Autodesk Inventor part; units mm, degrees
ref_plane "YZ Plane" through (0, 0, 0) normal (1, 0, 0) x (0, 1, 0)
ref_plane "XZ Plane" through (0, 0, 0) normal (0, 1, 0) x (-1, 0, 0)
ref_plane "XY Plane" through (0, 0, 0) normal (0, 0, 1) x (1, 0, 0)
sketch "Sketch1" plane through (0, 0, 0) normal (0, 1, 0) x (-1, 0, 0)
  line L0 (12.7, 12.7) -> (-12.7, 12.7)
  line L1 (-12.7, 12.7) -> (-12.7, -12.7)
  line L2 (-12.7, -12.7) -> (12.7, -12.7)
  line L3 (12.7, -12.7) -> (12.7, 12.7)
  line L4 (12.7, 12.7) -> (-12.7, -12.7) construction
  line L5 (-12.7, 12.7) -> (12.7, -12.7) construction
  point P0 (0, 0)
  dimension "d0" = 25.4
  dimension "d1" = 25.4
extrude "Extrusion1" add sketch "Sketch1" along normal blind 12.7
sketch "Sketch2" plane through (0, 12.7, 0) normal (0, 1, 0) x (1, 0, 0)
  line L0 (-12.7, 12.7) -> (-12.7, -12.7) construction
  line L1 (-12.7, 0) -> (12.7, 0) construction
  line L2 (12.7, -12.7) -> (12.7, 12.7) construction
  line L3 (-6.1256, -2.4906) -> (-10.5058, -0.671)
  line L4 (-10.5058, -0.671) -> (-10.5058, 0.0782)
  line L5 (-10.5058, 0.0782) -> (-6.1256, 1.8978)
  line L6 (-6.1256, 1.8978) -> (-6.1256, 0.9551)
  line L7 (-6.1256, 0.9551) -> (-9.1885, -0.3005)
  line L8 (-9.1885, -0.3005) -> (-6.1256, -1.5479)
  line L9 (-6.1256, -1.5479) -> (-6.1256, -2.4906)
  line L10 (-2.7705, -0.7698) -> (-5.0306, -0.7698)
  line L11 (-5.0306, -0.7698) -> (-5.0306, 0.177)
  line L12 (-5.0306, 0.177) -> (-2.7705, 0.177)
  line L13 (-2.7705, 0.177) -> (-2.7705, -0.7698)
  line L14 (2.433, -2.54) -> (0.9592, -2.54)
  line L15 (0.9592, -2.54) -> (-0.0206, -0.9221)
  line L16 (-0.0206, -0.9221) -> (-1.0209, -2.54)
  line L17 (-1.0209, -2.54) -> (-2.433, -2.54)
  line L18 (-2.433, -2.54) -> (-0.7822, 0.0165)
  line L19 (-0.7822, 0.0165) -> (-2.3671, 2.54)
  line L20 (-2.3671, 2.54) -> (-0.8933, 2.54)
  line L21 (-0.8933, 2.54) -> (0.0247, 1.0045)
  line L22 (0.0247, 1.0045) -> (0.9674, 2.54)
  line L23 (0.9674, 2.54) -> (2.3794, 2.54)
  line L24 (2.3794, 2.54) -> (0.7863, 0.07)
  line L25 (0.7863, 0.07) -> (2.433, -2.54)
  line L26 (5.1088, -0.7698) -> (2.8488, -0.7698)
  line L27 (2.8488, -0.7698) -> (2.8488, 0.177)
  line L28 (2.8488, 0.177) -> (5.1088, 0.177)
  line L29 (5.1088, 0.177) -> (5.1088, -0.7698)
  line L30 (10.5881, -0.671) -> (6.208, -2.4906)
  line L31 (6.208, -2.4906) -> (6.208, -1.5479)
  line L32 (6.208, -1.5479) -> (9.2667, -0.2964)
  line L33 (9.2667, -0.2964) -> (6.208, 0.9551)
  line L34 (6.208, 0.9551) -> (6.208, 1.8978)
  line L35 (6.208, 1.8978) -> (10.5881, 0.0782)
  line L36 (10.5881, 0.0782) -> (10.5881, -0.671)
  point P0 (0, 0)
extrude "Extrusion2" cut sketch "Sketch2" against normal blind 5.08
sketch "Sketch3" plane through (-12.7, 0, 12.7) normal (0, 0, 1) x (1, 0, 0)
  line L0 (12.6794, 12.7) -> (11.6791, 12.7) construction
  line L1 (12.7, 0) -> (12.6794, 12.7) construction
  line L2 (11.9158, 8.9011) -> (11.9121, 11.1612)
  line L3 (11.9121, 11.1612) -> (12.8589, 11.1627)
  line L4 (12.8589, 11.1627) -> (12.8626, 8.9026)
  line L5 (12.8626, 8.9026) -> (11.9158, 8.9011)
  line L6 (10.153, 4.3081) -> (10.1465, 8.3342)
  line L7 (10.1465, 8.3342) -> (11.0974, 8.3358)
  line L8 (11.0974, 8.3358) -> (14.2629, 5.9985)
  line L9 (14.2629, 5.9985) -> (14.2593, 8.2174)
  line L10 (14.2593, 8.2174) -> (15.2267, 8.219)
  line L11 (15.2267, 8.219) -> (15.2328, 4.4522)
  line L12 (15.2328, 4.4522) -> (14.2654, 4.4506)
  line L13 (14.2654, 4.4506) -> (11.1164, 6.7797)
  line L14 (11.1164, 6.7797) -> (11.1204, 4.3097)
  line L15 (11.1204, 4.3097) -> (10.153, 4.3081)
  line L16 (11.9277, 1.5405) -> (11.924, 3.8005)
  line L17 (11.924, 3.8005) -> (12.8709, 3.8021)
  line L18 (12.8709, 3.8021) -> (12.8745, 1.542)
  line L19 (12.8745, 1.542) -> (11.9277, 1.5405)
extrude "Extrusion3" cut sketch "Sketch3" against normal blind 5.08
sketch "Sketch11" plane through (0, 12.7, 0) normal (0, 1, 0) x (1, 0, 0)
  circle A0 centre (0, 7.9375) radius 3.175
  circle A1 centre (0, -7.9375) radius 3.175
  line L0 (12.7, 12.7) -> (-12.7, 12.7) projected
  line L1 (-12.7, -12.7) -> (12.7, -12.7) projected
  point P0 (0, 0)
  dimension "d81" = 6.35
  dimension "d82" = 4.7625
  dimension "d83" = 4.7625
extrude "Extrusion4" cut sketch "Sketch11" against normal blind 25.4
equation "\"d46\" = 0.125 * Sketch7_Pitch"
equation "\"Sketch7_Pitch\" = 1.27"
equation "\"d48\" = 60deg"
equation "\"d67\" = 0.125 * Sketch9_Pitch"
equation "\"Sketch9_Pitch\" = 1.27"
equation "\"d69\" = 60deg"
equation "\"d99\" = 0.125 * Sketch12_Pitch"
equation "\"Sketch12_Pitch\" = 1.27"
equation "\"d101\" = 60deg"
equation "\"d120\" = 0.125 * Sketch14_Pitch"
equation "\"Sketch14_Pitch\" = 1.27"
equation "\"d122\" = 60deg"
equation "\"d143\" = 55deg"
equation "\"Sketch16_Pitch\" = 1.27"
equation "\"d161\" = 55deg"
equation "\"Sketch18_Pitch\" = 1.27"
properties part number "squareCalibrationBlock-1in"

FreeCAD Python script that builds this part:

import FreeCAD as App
import Part
import Sketcher
from FreeCAD import Vector
Q = App.Units.Quantity


def add_polygon(sketch, points):
    """Adds a closed chain of lines whose ends are joined by coincident constraints."""
    first, n = sketch.GeometryCount, len(points)
    for a, b in zip(points, points[1:] + points[:1]):
        sketch.addGeometry(Part.LineSegment(App.Vector(*a, 0), App.Vector(*b, 0)), False)
    for i in range(n):
        sketch.addConstraint(Sketcher.Constraint("Coincident", first + i, 2, first + (i + 1) % n, 1))

doc = App.newDocument("Part")
body = doc.addObject("PartDesign::Body", "Body")

# Sketch on XZ plane
sketch1 = body.newObject("Sketcher::SketchObject", "Sketch")
sketch1.AttachmentSupport = (doc.getObject("XZ_Plane"), [""])
sketch1.MapMode = "FlatFace"
add_polygon(sketch1, [(-13, -13), (-13, 13), (13, 13), (13, -13)])  # lines 0-3
sketch1.addConstraint([
    Sketcher.Constraint("Vertical", 0),
    Sketcher.Constraint("Horizontal", 1),
    Sketcher.Constraint("Vertical", 2),
    Sketcher.Constraint("Horizontal", 3),
    Sketcher.Constraint("Symmetric", 0, 2, 2, 2, -1, 1),
    Sketcher.Constraint("Equal", 3, 0),
    Sketcher.Constraint("DistanceX", 1, 1, 1, 2, Q("1 in")),
])
pad1 = body.newObject("PartDesign::Pad", "Pad")
pad1.Profile = sketch1
pad1.Length = Q("0.5 in")
pad1.Reversed = True

# Sketch on XZ plane
sketch2 = body.newObject("Sketcher::SketchObject", "Sketch001")
sketch2.AttachmentSupport = (doc.getObject("XZ_Plane"), [""])
sketch2.MapMode = "FlatFace"
sketch2.AttachmentOffset = App.Placement(Vector(0, 0, -0.5 * 25.4), App.Rotation())
add_polygon(sketch2, [(-10.5, 0.7), (-6.1, 2.5), (-6.1, 1.5), (-9.2, 0.3), (-6.1, -1), (-6.1, -1.9), (-10.5, -0.1)])  # lines 0-6
add_polygon(sketch2, [(-5, 0.8), (-2.8, 0.8), (-2.8, -0.2), (-5, -0.2)])  # lines 7-10
add_polygon(sketch2, [(1, 2.5), (2.4, 2.5), (0.8, -0.1), (2.4, -2.5), (1, -2.5), (0, -1), (-0.9, -2.5), (-2.4, -2.5), (-0.8, 0), (-2.4, 2.5), (-1, 2.5), (0, 0.9)])  # lines 11-22
add_polygon(sketch2, [(2.8, 0.8), (5.1, 0.8), (5.1, -0.2), (2.8, -0.2)])  # lines 23-26
add_polygon(sketch2, [(6.2, 2.5), (10.6, 0.7), (10.6, -0.1), (6.2, -1.9), (6.2, -1), (9.3, 0.3), (6.2, 1.5)])  # lines 27-33
sketch2.addConstraint([
    Sketcher.Constraint("Vertical", 1),
    Sketcher.Constraint("Vertical", 4),
    Sketcher.Constraint("Vertical", 6),
    Sketcher.Constraint("Horizontal", 7),
    Sketcher.Constraint("Vertical", 8),
    Sketcher.Constraint("Horizontal", 9),
    Sketcher.Constraint("Vertical", 10),
    Sketcher.Constraint("Horizontal", 11),
    Sketcher.Constraint("Horizontal", 14),
    Sketcher.Constraint("Horizontal", 17),
    Sketcher.Constraint("Horizontal", 20),
    Sketcher.Constraint("Horizontal", 23),
    Sketcher.Constraint("Vertical", 24),
    Sketcher.Constraint("Horizontal", 25),
    Sketcher.Constraint("Vertical", 26),
    Sketcher.Constraint("Vertical", 28),
    Sketcher.Constraint("Vertical", 30),
    Sketcher.Constraint("Vertical", 33),
    Sketcher.Constraint("Symmetric", 11, 2, 19, 2, -2),
    Sketcher.Constraint("Parallel", 5, 27),
    Sketcher.Constraint("Parallel", 0, 29),
    Sketcher.Constraint("Horizontal", 14, 2, 16, 2),
    Sketcher.Constraint("Horizontal", 10, 2, 23, 2),
    Sketcher.Constraint("Horizontal", 9, 2, 24, 2),
    Sketcher.Constraint("Horizontal", 6, 2, 27, 2),
    Sketcher.Constraint("Horizontal", 5, 2, 28, 2),
    Sketcher.Constraint("Horizontal", 4, 2, 29, 2),
    Sketcher.Constraint("Horizontal", 3, 2, 30, 2),
    Sketcher.Constraint("Horizontal", 1, 2, 32, 2),
    Sketcher.Constraint("Horizontal", 0, 2, 33, 2),
    Sketcher.Constraint("Vertical", 1, 2, 3, 2),
    Sketcher.Constraint("Vertical", 30, 2, 32, 2),
    Sketcher.Constraint("Equal", 11, 17),
    Sketcher.Constraint("Equal", 14, 20),
    Sketcher.Constraint("Equal", 9, 23),
    Sketcher.Constraint("Equal", 1, 4),
    Sketcher.Constraint("Equal", 31, 32),
    Sketcher.Constraint("DistanceY", -1, 1, 11, 2, Q("0.1 in")),
    Sketcher.Constraint("DistanceY", 13, 2, -1, 1, Q("0.1 in")),
    Sketcher.Constraint("Angle", 22, Q("58.801 deg")),
    Sketcher.Constraint("Angle", 2, Q("-157.8408 deg")),
    Sketcher.Constraint("Angle", 3, Q("-22.2906 deg")),
    Sketcher.Constraint("Angle", 13, Q("-57.1788 deg")),
    Sketcher.Constraint("Angle", 18, Q("57.8689 deg")),
    Sketcher.Constraint("Angle", 27, Q("-22.5592 deg")),
    Sketcher.Constraint("DistanceX", 14, 2, 14, 1, Q("0.0556 in")),
    Sketcher.Constraint("DistanceY", 6, 1, 6, 2, Q("0.0295 in")),
    Sketcher.Constraint("DistanceX", 9, 2, 12, 2, Q("0.229 in")),
    Sketcher.Constraint("DistanceX", 19, 2, 18, 2, Q("0.065 in")),
    Sketcher.Constraint("DistanceY", 7, 2, 21, 2, Q("0.006 in")),
    Sketcher.Constraint("Distance", 2, Q("0.1302 in")),
    Sketcher.Constraint("Distance", 12, Q("0.1215 in")),
    Sketcher.Constraint("Distance", 19, Q("0.1198 in")),
    Sketcher.Constraint("Distance", 21, Q("0.0749 in")),
    Sketcher.Constraint("Distance", 31, Q("0.1301 in")),
    Sketcher.Constraint("DistanceX", 7, 1, 7, 2, 2.26),
    Sketcher.Constraint("DistanceX", 11, 1, 11, 2, 1.4738),
    Sketcher.Constraint("DistanceY", 1, 2, 1, 1, 0.9427),
    Sketcher.Constraint("DistanceY", 8, 2, 8, 1, 0.9468),
    Sketcher.Constraint("DistanceY", 3, 2, -1, 1, Q("0.0376 in")),
    Sketcher.Constraint("DistanceY", -1, 1, 7, 2, Q("0.0303 in")),
    Sketcher.Constraint("DistanceX", -1, 1, 29, 2, Q("0.2444 in")),
    Sketcher.Constraint("DistanceX", 1, 2, 7, 2, Q("0.1321 in")),
    Sketcher.Constraint("DistanceX", 13, 2, 11, 2, Q("0.0021 in")),
    Sketcher.Constraint("DistanceY", 15, 2, 12, 2, Q("0.0368 in")),
    Sketcher.Constraint("DistanceX", 15, 2, 13, 2, Q("0.0927 in")),
    Sketcher.Constraint("DistanceX", 12, 2, 25, 2, Q("0.0812 in")),
])
pocket1 = body.newObject("PartDesign::Pocket", "Pocket")
pocket1.Profile = sketch2
pocket1.Length = Q("0.2 in")
pocket1.Reversed = True

# Sketch on XY plane
sketch3 = body.newObject("Sketcher::SketchObject", "Sketch002")
sketch3.AttachmentSupport = (doc.getObject("XY_Plane"), [""])
sketch3.MapMode = "FlatFace"
sketch3.AttachmentOffset = App.Placement(Vector(0, 0, 0.5 * 25.4), App.Rotation())
add_polygon(sketch3, [(-0.8, 11.2), (-0.8, 8.9), (0.2, 8.9), (0.2, 11.2)])  # lines 0-3
add_polygon(sketch3, [(-2.6, 8.3), (-2.5, 4.3), (-1.6, 4.3), (-1.6, 6.8), (1.6, 4.5), (2.5, 4.5), (2.5, 8.2), (1.6, 8.2), (1.6, 6), (-1.6, 8.3)])  # lines 4-13
add_polygon(sketch3, [(-0.8, 3.8), (-0.8, 1.5), (0.2, 1.5), (0.2, 3.8)])  # lines 14-17
sketch3.addConstraint([
    Sketcher.Constraint("Perpendicular", 0, 1),
    Sketcher.Constraint("Perpendicular", 1, 2),
    Sketcher.Constraint("Perpendicular", 2, 3),
    Sketcher.Constraint("Perpendicular", 3, 4),
    Sketcher.Constraint("Perpendicular", 4, 5),
    Sketcher.Constraint("Perpendicular", 5, 6),
    Sketcher.Constraint("Perpendicular", 6, 8),
    Sketcher.Constraint("Perpendicular", 8, 9),
    Sketcher.Constraint("Perpendicular", 9, 10),
    Sketcher.Constraint("Perpendicular", 10, 11),
    Sketcher.Constraint("Perpendicular", 11, 13),
    Sketcher.Constraint("Perpendicular", 13, 14),
    Sketcher.Constraint("Perpendicular", 14, 15),
    Sketcher.Constraint("Perpendicular", 15, 16),
    Sketcher.Constraint("Perpendicular", 16, 17),
    Sketcher.Constraint("Equal", 5, 8),
    Sketcher.Constraint("Equal", 8, 10),
    Sketcher.Constraint("Equal", 2, 14),
    Sketcher.Constraint("Equal", 3, 15),
    Sketcher.Constraint("DistanceX", 4, 2, 8, 2, Q("0.2 in")),
    Sketcher.Constraint("Angle", 1, Q("0.0908 deg")),
    Sketcher.Constraint("Angle", 12, Q("143.559 deg")),
    Sketcher.Constraint("DistanceY", -1, 1, 13, 2, Q("0.3281181 in")),
    Sketcher.Constraint("DistanceX", 1, 2, 10, 2, Q("0.055 in")),
    Sketcher.Constraint("DistanceX", 16, 2, 8, 2, Q("0.093 in")),
    Sketcher.Constraint("Distance", 4, Q("0.1585 in")),
    Sketcher.Constraint("Distance", 7, Q("0.1542 in")),
    Sketcher.Constraint("Distance", 9, Q("0.1483 in")),
    Sketcher.Constraint("DistanceX", -1, 1, 1, 2, Q("0.0064 in")),
    Sketcher.Constraint("DistanceY", -1, 1, 1, 2, Q("0.3505 in")),
    Sketcher.Constraint("DistanceX", 5, 2, -1, 1, Q("0.0622 in")),
    Sketcher.Constraint("DistanceX", 12, 2, -1, 1, Q("0.0631 in")),
    Sketcher.Constraint("DistanceX", 14, 2, -1, 1, Q("0.0304 in")),
    Sketcher.Constraint("DistanceY", -1, 1, 15, 2, Q("0.0607 in")),
    Sketcher.Constraint("DistanceY", -1, 1, 16, 2, Q("0.1497 in")),
    Sketcher.Constraint("DistanceY", 4, 2, 6, 2, Q("0.0973 in")),
])
pocket2 = body.newObject("PartDesign::Pocket", "Pocket001")
pocket2.Profile = sketch3
pocket2.Length = Q("0.2 in")

# Sketch on XZ plane
sketch4 = body.newObject("Sketcher::SketchObject", "Sketch003")
sketch4.AttachmentSupport = (doc.getObject("XZ_Plane"), [""])
sketch4.MapMode = "FlatFace"
sketch4.AttachmentOffset = App.Placement(Vector(0, 0, -0.5 * 25.4), App.Rotation())
sketch4.addGeometry([
    Part.Circle(Vector(0, -7.9, 0), Vector(0, 0, 1), 3.2),
    Part.Circle(Vector(0, 7.9, 0), Vector(0, 0, 1), 3.2),
], False)
sketch4.addConstraint([
    Sketcher.Constraint("Equal", 0, 1),
    Sketcher.Constraint("Symmetric", 0, 3, 1, 3, -1, 1),
    Sketcher.Constraint("PointOnObject", 0, 3, -2),
    Sketcher.Constraint("Diameter", 0, Q("0.25 in")),
    Sketcher.Constraint("DistanceY", 0, 3, -1, 1, Q("0.3125 in")),
])
pocket3 = body.newObject("PartDesign::Pocket", "Pocket002")
pocket3.Profile = sketch4
pocket3.Length = Q("1 in")
pocket3.Reversed = True

doc.recompute()
